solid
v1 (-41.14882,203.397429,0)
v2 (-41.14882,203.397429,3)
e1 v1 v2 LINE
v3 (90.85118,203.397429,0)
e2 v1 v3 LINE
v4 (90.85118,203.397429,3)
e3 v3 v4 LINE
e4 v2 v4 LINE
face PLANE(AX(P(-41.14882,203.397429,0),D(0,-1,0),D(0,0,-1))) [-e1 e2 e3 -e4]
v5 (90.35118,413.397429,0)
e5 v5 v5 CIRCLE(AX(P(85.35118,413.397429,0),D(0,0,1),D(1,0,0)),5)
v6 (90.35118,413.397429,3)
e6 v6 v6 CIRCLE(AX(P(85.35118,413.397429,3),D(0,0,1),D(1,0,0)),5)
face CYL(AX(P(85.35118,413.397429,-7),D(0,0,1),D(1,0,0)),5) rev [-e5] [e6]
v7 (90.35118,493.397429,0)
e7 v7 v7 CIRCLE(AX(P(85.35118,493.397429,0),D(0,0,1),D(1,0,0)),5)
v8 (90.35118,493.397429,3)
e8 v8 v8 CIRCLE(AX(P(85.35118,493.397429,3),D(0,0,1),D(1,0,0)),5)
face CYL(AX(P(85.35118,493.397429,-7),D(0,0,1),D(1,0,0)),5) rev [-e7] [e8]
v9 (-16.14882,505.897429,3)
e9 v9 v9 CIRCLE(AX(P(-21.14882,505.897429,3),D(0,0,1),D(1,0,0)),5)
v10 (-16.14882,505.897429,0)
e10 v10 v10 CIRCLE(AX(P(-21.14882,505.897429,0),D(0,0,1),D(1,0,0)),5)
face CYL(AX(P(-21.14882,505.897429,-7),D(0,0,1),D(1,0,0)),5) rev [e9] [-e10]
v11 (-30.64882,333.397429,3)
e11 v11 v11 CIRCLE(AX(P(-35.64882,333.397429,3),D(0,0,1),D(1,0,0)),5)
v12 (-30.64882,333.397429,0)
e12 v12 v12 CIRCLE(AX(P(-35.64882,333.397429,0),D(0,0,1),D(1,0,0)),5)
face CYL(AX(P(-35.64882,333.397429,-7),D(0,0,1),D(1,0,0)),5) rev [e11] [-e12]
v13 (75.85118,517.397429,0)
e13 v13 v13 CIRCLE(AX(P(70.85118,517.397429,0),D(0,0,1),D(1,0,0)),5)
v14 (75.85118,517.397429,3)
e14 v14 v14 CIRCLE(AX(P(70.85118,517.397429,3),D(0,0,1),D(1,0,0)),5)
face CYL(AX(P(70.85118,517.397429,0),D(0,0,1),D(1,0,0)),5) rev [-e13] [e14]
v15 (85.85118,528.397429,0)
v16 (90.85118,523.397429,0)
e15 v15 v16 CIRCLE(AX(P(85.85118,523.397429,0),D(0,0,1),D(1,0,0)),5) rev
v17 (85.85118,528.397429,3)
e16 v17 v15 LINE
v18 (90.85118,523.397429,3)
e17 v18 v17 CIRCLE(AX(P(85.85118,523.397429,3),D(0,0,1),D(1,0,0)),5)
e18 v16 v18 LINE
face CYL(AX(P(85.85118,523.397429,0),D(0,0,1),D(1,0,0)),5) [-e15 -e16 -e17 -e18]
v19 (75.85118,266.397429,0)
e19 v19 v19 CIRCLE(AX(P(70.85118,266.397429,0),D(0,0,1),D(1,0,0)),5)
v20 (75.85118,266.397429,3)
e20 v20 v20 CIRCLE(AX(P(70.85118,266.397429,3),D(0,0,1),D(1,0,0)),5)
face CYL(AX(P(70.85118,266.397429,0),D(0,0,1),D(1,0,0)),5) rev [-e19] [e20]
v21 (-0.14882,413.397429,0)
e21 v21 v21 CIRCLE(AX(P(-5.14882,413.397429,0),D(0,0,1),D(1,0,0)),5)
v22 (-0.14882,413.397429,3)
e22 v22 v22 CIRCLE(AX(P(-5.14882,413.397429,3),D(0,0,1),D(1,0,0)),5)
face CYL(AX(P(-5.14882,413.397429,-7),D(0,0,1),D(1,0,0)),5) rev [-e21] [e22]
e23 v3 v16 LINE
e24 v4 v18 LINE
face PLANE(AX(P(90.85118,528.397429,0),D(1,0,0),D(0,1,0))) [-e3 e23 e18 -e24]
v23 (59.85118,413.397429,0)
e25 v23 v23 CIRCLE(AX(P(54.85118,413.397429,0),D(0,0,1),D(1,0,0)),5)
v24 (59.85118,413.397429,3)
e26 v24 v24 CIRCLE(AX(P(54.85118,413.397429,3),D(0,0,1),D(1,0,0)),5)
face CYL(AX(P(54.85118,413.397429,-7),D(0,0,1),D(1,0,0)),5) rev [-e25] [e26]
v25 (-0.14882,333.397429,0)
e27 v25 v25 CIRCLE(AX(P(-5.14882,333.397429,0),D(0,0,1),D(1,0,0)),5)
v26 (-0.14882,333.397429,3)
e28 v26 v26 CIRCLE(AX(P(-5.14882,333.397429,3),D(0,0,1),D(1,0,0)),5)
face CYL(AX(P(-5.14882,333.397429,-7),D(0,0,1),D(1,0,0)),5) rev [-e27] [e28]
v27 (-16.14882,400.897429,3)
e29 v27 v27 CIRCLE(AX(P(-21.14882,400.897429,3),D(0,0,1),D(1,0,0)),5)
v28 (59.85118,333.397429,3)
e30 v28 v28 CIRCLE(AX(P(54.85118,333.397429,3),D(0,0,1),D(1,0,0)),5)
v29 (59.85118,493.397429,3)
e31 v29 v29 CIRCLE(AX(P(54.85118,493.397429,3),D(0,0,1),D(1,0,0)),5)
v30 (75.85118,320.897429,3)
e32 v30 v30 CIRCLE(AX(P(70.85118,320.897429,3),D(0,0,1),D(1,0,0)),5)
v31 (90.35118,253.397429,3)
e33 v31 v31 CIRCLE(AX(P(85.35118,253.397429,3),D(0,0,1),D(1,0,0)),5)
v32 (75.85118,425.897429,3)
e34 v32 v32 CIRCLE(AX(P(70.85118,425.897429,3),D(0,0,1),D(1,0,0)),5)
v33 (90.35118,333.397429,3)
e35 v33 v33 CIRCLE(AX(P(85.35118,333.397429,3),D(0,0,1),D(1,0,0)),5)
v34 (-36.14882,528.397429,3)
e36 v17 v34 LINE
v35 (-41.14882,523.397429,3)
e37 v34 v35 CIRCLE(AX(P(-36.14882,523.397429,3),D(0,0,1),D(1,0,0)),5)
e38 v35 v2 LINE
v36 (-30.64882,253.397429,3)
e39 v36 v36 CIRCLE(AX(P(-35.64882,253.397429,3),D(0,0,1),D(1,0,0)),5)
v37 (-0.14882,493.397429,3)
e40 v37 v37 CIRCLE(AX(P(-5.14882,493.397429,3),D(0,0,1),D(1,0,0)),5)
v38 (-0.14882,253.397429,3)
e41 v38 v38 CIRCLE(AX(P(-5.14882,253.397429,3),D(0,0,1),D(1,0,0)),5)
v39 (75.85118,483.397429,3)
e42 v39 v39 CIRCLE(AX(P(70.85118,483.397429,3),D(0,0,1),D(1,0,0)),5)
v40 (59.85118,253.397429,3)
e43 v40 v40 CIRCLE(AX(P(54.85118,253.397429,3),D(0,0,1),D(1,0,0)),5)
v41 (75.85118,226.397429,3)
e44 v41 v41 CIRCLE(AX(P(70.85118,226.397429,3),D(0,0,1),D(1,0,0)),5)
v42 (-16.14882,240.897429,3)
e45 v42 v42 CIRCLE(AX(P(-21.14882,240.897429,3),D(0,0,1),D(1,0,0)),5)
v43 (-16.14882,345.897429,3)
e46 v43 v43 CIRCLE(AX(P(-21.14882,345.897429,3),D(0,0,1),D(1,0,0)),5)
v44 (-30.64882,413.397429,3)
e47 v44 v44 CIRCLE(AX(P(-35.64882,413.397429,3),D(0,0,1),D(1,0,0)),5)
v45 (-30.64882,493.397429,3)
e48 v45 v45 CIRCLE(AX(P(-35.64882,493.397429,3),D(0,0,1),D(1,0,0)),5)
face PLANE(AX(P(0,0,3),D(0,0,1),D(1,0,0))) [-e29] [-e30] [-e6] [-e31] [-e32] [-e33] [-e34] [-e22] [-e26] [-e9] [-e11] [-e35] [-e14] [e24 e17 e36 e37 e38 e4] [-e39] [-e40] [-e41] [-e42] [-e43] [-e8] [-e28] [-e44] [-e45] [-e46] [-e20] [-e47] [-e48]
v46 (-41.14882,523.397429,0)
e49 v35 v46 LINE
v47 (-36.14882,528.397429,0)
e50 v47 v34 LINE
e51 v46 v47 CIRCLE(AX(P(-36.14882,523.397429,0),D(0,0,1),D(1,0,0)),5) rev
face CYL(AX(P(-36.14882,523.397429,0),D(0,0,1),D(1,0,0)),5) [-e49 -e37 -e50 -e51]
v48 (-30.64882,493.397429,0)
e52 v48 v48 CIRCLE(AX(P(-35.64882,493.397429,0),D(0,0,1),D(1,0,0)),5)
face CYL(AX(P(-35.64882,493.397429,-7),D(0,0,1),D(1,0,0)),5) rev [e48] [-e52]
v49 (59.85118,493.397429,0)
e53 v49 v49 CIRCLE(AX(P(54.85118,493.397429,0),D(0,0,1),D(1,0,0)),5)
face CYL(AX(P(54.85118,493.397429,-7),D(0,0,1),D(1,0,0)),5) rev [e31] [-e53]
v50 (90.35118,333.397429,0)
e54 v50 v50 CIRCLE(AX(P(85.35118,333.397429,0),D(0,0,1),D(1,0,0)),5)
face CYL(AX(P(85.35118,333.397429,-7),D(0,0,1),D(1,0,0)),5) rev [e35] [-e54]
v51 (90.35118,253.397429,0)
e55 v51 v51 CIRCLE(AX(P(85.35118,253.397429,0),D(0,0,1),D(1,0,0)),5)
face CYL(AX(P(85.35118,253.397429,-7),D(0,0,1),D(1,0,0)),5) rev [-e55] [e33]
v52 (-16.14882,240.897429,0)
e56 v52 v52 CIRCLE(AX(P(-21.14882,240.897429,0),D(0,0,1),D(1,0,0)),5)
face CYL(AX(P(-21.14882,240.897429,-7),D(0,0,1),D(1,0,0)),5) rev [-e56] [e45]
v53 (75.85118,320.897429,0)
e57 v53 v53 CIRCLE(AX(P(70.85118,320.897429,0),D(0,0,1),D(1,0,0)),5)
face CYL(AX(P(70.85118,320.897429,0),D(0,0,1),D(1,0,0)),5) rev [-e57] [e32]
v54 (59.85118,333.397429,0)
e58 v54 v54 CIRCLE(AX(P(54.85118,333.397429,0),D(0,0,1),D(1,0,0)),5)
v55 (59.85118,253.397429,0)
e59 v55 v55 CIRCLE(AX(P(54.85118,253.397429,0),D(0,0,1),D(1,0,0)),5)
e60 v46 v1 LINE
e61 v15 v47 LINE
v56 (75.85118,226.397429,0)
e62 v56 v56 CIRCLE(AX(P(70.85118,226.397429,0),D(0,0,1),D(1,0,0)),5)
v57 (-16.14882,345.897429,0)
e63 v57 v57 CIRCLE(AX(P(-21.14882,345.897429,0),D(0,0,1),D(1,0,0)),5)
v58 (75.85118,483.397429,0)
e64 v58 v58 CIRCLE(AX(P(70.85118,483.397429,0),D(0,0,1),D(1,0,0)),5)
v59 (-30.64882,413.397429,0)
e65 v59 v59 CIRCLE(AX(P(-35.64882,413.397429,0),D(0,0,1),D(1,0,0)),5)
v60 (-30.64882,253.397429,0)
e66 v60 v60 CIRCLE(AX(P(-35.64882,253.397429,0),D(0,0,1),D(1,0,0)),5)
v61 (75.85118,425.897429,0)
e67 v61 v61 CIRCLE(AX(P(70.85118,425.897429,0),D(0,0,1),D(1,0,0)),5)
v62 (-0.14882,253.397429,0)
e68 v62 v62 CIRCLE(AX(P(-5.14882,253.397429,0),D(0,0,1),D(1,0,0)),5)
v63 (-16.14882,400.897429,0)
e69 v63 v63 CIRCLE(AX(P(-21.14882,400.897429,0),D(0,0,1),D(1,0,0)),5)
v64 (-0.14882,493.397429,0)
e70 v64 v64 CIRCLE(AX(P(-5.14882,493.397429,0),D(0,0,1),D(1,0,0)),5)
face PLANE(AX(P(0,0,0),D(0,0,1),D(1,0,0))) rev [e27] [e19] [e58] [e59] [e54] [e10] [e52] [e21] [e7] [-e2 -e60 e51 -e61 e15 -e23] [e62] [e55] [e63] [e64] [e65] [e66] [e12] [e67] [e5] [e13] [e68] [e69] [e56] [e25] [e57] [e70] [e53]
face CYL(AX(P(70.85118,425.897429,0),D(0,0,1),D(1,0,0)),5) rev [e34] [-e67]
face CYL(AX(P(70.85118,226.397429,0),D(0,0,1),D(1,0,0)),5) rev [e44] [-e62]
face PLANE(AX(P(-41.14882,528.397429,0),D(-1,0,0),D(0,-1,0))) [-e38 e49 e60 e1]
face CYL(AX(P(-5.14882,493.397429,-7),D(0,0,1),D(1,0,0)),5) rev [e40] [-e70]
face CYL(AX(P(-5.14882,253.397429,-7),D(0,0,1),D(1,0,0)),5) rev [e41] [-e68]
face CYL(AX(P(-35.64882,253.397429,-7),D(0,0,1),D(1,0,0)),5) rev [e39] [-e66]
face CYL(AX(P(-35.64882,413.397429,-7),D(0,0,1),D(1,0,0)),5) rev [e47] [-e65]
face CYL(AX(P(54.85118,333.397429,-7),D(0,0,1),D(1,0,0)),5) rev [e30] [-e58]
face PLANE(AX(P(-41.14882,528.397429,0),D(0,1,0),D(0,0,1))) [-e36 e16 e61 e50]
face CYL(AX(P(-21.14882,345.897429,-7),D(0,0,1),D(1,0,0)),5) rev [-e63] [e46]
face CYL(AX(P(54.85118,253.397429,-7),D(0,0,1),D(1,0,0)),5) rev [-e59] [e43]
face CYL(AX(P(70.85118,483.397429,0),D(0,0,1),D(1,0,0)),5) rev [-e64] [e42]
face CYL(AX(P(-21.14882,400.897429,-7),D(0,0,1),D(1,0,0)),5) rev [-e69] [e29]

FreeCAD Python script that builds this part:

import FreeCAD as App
import Part
import Sketcher

V = App.Vector


def edges_at(feature, points):
    """Names of the edges that pass closest to the given points."""
    edges = feature.Shape.Edges
    near = lambda p: min(range(len(edges)), key=lambda i: edges[i].distToShape(Part.Vertex(*p))[0])
    return sorted({f"Edge{near(p) + 1}" for p in points})


def add_polygon(sketch, points):
    """Adds a closed chain of lines whose ends are joined by coincident constraints."""
    first, n = sketch.GeometryCount, len(points)
    for a, b in zip(points, points[1:] + points[:1]):
        sketch.addGeometry(Part.LineSegment(App.Vector(*a, 0), App.Vector(*b, 0)), False)
    for i in range(n):
        sketch.addConstraint(Sketcher.Constraint("Coincident", first + i, 2, first + (i + 1) % n, 1))

doc = App.newDocument("Part")
body = doc.addObject("PartDesign::Body", "Body")

# Sketch on XY plane
sketch1 = body.newObject("Sketcher::SketchObject", "Sketch")
sketch1.AttachmentSupport = (doc.getObject("XY_Plane"), [""])
sketch1.MapMode = "FlatFace"
sketch1.AttachmentOffset = App.Placement(V(0, 0, 3), App.Rotation())
add_polygon(sketch1, [(-41, 528), (-41, 203), (91, 203), (91, 528)])  # lines 0-3
sketch1.addConstraint(Sketcher.Constraint("Vertical", 0))
sketch1.addConstraint(Sketcher.Constraint("Horizontal", 1))
sketch1.addConstraint(Sketcher.Constraint("Vertical", 2))
sketch1.addConstraint(Sketcher.Constraint("Horizontal", 3))
sketch1.addConstraint(Sketcher.Constraint("DistanceX", 1, 1, 1, 2, 132.0))
sketch1.addConstraint(Sketcher.Constraint("DistanceY", 0, 2, 0, 1, 325.0))
sketch1.addConstraint(Sketcher.Constraint("DistanceX", 0, 2, -1, 1, 41.14882))
sketch1.addConstraint(Sketcher.Constraint("DistanceY", -1, 1, 0, 2, 203.397429))
pad1 = body.newObject("PartDesign::Pad", "Pad")
pad1.Profile = sketch1
pad1.Length = 3
pad1.Reversed = True

# Sketch on XY plane
sketch2 = body.newObject("Sketcher::SketchObject", "Sketch001")
sketch2.AttachmentSupport = (doc.getObject("XY_Plane"), [""])
sketch2.MapMode = "FlatFace"
sketch2.AttachmentOffset = App.Placement(V(0, 0, 3), App.Rotation())
sketch2.addGeometry(Part.Circle(V(71, 517, 0), V(0, 0, 1), 5), False)
sketch2.addGeometry(Part.Circle(V(71, 483, 0), V(0, 0, 1), 5), False)
sketch2.addGeometry(Part.Circle(V(71, 426, 0), V(0, 0, 1), 5), False)
sketch2.addGeometry(Part.Circle(V(71, 321, 0), V(0, 0, 1), 5), False)
sketch2.addGeometry(Part.Circle(V(71, 266, 0), V(0, 0, 1), 5), False)
sketch2.addGeometry(Part.Circle(V(71, 226, 0), V(0, 0, 1), 5), False)
sketch2.addConstraint(Sketcher.Constraint("Equal", 0, 1))
sketch2.addConstraint(Sketcher.Constraint("Equal", 1, 2))
sketch2.addConstraint(Sketcher.Constraint("Equal", 2, 3))
sketch2.addConstraint(Sketcher.Constraint("Equal", 3, 4))
sketch2.addConstraint(Sketcher.Constraint("Equal", 4, 5))
sketch2.addConstraint(Sketcher.Constraint("Vertical", 0, 3, 1, 3))
sketch2.addConstraint(Sketcher.Constraint("Vertical", 1, 3, 2, 3))
sketch2.addConstraint(Sketcher.Constraint("Vertical", 2, 3, 3, 3))
sketch2.addConstraint(Sketcher.Constraint("Vertical", 3, 3, 4, 3))
sketch2.addConstraint(Sketcher.Constraint("Vertical", 4, 3, 5, 3))
sketch2.addConstraint(Sketcher.Constraint("Diameter", 0, 10.0))
sketch2.addConstraint(Sketcher.Constraint("DistanceY", 1, 3, 0, 3, 34.0))
sketch2.addConstraint(Sketcher.Constraint("DistanceY", 3, 3, 2, 3, 105.0))
sketch2.addConstraint(Sketcher.Constraint("DistanceY", 4, 3, 1, 3, 217.0))
sketch2.addConstraint(Sketcher.Constraint("DistanceY", 5, 3, 4, 3, 40.0))
sketch2.addConstraint(Sketcher.Constraint("DistanceY", 2, 3, 1, 3, 57.5))
sketch2.addConstraint(Sketcher.Constraint("DistanceX", -1, 1, 0, 3, 70.85118))
sketch2.addConstraint(Sketcher.Constraint("DistanceY", -1, 1, 0, 3, 517.397429))
pocket1 = body.newObject("PartDesign::Pocket", "Pocket")
pocket1.Profile = sketch2
pocket1.Type = "ThroughAll"

# Sketch on XY plane
sketch3 = body.newObject("Sketcher::SketchObject", "Sketch002")
sketch3.AttachmentSupport = (doc.getObject("XY_Plane"), [""])
sketch3.MapMode = "FlatFace"
sketch3.AttachmentOffset = App.Placement(V(0, 0, 3), App.Rotation())
sketch3.addGeometry(Part.Circle(V(-21, 506, 0), V(0, 0, 1), 5), False)
sketch3.addGeometry(Part.Circle(V(-21, 401, 0), V(0, 0, 1), 5), False)
sketch3.addGeometry(Part.Circle(V(-21, 346, 0), V(0, 0, 1), 5), False)
sketch3.addGeometry(Part.Circle(V(-21, 241, 0), V(0, 0, 1), 5), False)
sketch3.addConstraint(Sketcher.Constraint("Equal", 0, 1))
sketch3.addConstraint(Sketcher.Constraint("Equal", 1, 2))
sketch3.addConstraint(Sketcher.Constraint("Equal", 2, 3))
sketch3.addConstraint(Sketcher.Constraint("Vertical", 0, 3, 1, 3))
sketch3.addConstraint(Sketcher.Constraint("Vertical", 1, 3, 2, 3))
sketch3.addConstraint(Sketcher.Constraint("Vertical", 2, 3, 3, 3))
sketch3.addConstraint(Sketcher.Constraint("Diameter", 0, 10.0))
sketch3.addConstraint(Sketcher.Constraint("DistanceY", 1, 3, 0, 3, 105.0))
sketch3.addConstraint(Sketcher.Constraint("DistanceY", 2, 3, 1, 3, 55.0))
sketch3.addConstraint(Sketcher.Constraint("DistanceY", 3, 3, 2, 3, 105.0))
sketch3.addConstraint(Sketcher.Constraint("DistanceX", 0, 3, -1, 1, 21.14882))
sketch3.addConstraint(Sketcher.Constraint("DistanceY", -1, 1, 0, 3, 505.897429))
pocket2 = body.newObject("PartDesign::Pocket", "Pocket001")
pocket2.Profile = sketch3
pocket2.Length = 10

# Sketch on XY plane
sketch4 = body.newObject("Sketcher::SketchObject", "Sketch003")
sketch4.AttachmentSupport = (doc.getObject("XY_Plane"), [""])
sketch4.MapMode = "FlatFace"
sketch4.AttachmentOffset = App.Placement(V(0, 0, 3), App.Rotation())
sketch4.addGeometry(Part.Circle(V(-36, 253, 0), V(0, 0, 1), 5), False)
sketch4.addGeometry(Part.Circle(V(-5, 253, 0), V(0, 0, 1), 5), False)
sketch4.addGeometry(Part.Circle(V(55, 253, 0), V(0, 0, 1), 5), False)
sketch4.addGeometry(Part.Circle(V(85, 253, 0), V(0, 0, 1), 5), False)
sketch4.addConstraint(Sketcher.Constraint("Equal", 0, 1))
sketch4.addConstraint(Sketcher.Constraint("Equal", 1, 2))
sketch4.addConstraint(Sketcher.Constraint("Equal", 2, 3))
sketch4.addConstraint(Sketcher.Constraint("Horizontal", 0, 3, 1, 3))
sketch4.addConstraint(Sketcher.Constraint("Horizontal", 1, 3, 2, 3))
sketch4.addConstraint(Sketcher.Constraint("Horizontal", 2, 3, 3, 3))
sketch4.addConstraint(Sketcher.Constraint("Diameter", 0, 10.0))
sketch4.addConstraint(Sketcher.Constraint("DistanceX", 1, 3, 2, 3, 60.0))
sketch4.addConstraint(Sketcher.Constraint("DistanceX", 0, 3, 3, 3, 121.0))
sketch4.addConstraint(Sketcher.Constraint("DistanceX", 0, 3, 1, 3, 30.5))
sketch4.addConstraint(Sketcher.Constraint("DistanceX", 0, 3, -1, 1, 35.64882))
sketch4.addConstraint(Sketcher.Constraint("DistanceY", -1, 1, 0, 3, 253.397429))
pocket3 = body.newObject("PartDesign::Pocket", "Pocket002")
pocket3.Profile = sketch4
pocket3.Length = 10
doc.recompute()

linearpattern = body.newObject("PartDesign::LinearPattern", "LinearPattern")
linearpattern.Originals = [pocket3]
linearpattern.Direction = (doc.getObject("Y_Axis"), [""])
linearpattern.Mode = "offset"
linearpattern.Offset = 80
linearpattern.Occurrences = 4
body.Tip = linearpattern
doc.recompute()

fillet = body.newObject("PartDesign::Fillet", "Fillet")
fillet.Base = (linearpattern, edges_at(linearpattern, [(-41.149, 528.397, 1.5), (90.851, 528.397, 1.5)]))
fillet.Radius = 5

doc.recompute()
